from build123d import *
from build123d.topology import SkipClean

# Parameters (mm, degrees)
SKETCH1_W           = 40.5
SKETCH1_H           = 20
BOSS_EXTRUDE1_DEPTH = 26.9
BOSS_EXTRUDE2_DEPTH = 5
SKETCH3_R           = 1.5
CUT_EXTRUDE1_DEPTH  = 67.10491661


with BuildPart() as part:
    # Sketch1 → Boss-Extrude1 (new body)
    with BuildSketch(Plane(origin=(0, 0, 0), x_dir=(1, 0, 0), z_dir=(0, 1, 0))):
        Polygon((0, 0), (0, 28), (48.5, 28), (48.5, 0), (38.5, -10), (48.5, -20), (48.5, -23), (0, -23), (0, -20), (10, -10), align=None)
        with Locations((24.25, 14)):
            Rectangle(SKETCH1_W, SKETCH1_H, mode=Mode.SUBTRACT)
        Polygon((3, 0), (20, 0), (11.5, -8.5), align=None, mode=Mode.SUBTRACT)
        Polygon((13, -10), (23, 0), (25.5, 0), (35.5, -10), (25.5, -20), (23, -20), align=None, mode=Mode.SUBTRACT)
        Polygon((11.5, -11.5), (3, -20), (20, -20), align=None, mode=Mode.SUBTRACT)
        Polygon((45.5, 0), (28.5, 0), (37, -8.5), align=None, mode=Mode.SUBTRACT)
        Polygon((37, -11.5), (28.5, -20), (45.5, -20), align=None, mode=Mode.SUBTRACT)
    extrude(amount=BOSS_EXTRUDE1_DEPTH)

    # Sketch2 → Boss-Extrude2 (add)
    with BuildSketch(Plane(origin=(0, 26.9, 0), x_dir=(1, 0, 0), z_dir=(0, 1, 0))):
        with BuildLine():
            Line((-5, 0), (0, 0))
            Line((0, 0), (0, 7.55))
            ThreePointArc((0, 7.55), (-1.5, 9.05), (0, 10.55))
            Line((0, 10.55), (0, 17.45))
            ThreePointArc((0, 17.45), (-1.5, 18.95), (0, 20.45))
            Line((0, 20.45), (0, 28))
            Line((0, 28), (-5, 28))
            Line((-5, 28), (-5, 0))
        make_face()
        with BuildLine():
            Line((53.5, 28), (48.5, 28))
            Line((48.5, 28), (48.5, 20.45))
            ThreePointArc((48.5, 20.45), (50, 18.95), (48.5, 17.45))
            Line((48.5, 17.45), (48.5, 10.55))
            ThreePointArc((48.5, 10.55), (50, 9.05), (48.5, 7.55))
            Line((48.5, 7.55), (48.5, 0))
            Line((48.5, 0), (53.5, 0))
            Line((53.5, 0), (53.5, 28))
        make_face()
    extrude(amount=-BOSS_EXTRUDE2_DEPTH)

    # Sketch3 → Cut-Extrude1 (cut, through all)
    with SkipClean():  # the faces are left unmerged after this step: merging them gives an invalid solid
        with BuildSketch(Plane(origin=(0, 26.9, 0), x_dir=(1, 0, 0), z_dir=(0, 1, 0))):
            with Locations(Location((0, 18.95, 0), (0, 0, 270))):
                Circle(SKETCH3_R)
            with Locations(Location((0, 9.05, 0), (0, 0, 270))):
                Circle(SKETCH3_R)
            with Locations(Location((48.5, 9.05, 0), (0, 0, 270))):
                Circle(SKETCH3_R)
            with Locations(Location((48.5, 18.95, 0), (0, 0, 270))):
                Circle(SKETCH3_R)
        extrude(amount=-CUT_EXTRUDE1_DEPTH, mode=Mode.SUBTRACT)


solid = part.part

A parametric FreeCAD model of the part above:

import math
import FreeCAD as App
import Part
import Sketcher
from FreeCAD import Vector

doc = App.newDocument("Part")
body = doc.addObject("PartDesign::Body", "Body")

# Sketch on XZ plane
sketch1 = body.newObject("Sketcher::SketchObject", "Sketch")
sketch1.AttachmentSupport = (doc.getObject("XZ_Plane"), [""])
sketch1.MapMode = "FlatFace"
sketch1.addGeometry(Part.LineSegment(Vector(0, -28, 0), Vector(0, 0, 0)), False)
sketch1.addGeometry(Part.LineSegment(Vector(0, 0, 0), Vector(10, 10, 0)), False)
sketch1.addGeometry(Part.LineSegment(Vector(10, 10, 0), Vector(0, 20, 0)), False)
sketch1.addGeometry(Part.LineSegment(Vector(0, 20, 0), Vector(0, 23, 0)), False)
sketch1.addGeometry(Part.LineSegment(Vector(0, 23, 0), Vector(48.5, 23, 0)), False)
sketch1.addGeometry(Part.LineSegment(Vector(48.5, 23, 0), Vector(48.5, 20, 0)), False)
sketch1.addGeometry(Part.LineSegment(Vector(48.5, 20, 0), Vector(38.5, 10, 0)), False)
sketch1.addGeometry(Part.LineSegment(Vector(38.5, 10, 0), Vector(48.5, 0, 0)), False)
sketch1.addGeometry(Part.LineSegment(Vector(48.5, 0, 0), Vector(48.5, -28, 0)), False)
sketch1.addGeometry(Part.LineSegment(Vector(48.5, -28, 0), Vector(0, -28, 0)), False)
sketch1.addGeometry(Part.LineSegment(Vector(37, 11.5, 0), Vector(45.5, 20, 0)), False)
sketch1.addGeometry(Part.LineSegment(Vector(45.5, 20, 0), Vector(28.5, 20, 0)), False)
sketch1.addGeometry(Part.LineSegment(Vector(28.5, 20, 0), Vector(37, 11.5, 0)), False)
sketch1.addGeometry(Part.LineSegment(Vector(45.5, 0, 0), Vector(37, 8.5, 0)), False)
sketch1.addGeometry(Part.LineSegment(Vector(37, 8.5, 0), Vector(28.5, 0, 0)), False)
sketch1.addGeometry(Part.LineSegment(Vector(28.5, 0, 0), Vector(45.5, 0, 0)), False)
sketch1.addGeometry(Part.LineSegment(Vector(13, 10, 0), Vector(23, 0, 0)), False)
sketch1.addGeometry(Part.LineSegment(Vector(23, 0, 0), Vector(25.5, 0, 0)), False)
sketch1.addGeometry(Part.LineSegment(Vector(25.5, 0, 0), Vector(35.5, 10, 0)), False)
sketch1.addGeometry(Part.LineSegment(Vector(35.5, 10, 0), Vector(25.5, 20, 0)), False)
sketch1.addGeometry(Part.LineSegment(Vector(25.5, 20, 0), Vector(23, 20, 0)), False)
sketch1.addGeometry(Part.LineSegment(Vector(23, 20, 0), Vector(13, 10, 0)), False)
sketch1.addGeometry(Part.LineSegment(Vector(11.5, 11.5, 0), Vector(20, 20, 0)), False)
sketch1.addGeometry(Part.LineSegment(Vector(20, 20, 0), Vector(3, 20, 0)), False)
sketch1.addGeometry(Part.LineSegment(Vector(3, 20, 0), Vector(11.5, 11.5, 0)), False)
sketch1.addGeometry(Part.LineSegment(Vector(3, 0, 0), Vector(20, 0, 0)), False)
sketch1.addGeometry(Part.LineSegment(Vector(20, 0, 0), Vector(11.5, 8.5, 0)), False)
sketch1.addGeometry(Part.LineSegment(Vector(11.5, 8.5, 0), Vector(3, 0, 0)), False)
sketch1.addGeometry(Part.LineSegment(Vector(4, -4, 0), Vector(4, -24, 0)), False)
sketch1.addGeometry(Part.LineSegment(Vector(4, -24, 0), Vector(44.5, -24, 0)), False)
sketch1.addGeometry(Part.LineSegment(Vector(44.5, -24, 0), Vector(44.5, -4, 0)), False)
sketch1.addGeometry(Part.LineSegment(Vector(44.5, -4, 0), Vector(4, -4, 0)), False)
sketch1.addConstraint(Sketcher.Constraint("Coincident", 0, 2, 1, 1))
sketch1.addConstraint(Sketcher.Constraint("Coincident", 1, 2, 2, 1))
sketch1.addConstraint(Sketcher.Constraint("Coincident", 2, 2, 3, 1))
sketch1.addConstraint(Sketcher.Constraint("Coincident", 3, 2, 4, 1))
sketch1.addConstraint(Sketcher.Constraint("Coincident", 4, 2, 5, 1))
sketch1.addConstraint(Sketcher.Constraint("Coincident", 5, 2, 6, 1))
sketch1.addConstraint(Sketcher.Constraint("Coincident", 6, 2, 7, 1))
sketch1.addConstraint(Sketcher.Constraint("Coincident", 7, 2, 8, 1))
sketch1.addConstraint(Sketcher.Constraint("Coincident", 8, 2, 9, 1))
sketch1.addConstraint(Sketcher.Constraint("Coincident", 9, 2, 0, 1))
sketch1.addConstraint(Sketcher.Constraint("Coincident", 10, 2, 11, 1))
sketch1.addConstraint(Sketcher.Constraint("Coincident", 11, 2, 12, 1))
sketch1.addConstraint(Sketcher.Constraint("Coincident", 12, 2, 10, 1))
sketch1.addConstraint(Sketcher.Constraint("Coincident", 13, 2, 14, 1))
sketch1.addConstraint(Sketcher.Constraint("Coincident", 14, 2, 15, 1))
sketch1.addConstraint(Sketcher.Constraint("Coincident", 15, 2, 13, 1))
sketch1.addConstraint(Sketcher.Constraint("Coincident", 16, 2, 17, 1))
sketch1.addConstraint(Sketcher.Constraint("Coincident", 17, 2, 18, 1))
sketch1.addConstraint(Sketcher.Constraint("Coincident", 18, 2, 19, 1))
sketch1.addConstraint(Sketcher.Constraint("Coincident", 19, 2, 20, 1))
sketch1.addConstraint(Sketcher.Constraint("Coincident", 20, 2, 21, 1))
sketch1.addConstraint(Sketcher.Constraint("Coincident", 21, 2, 16, 1))
sketch1.addConstraint(Sketcher.Constraint("Coincident", 22, 2, 23, 1))
sketch1.addConstraint(Sketcher.Constraint("Coincident", 23, 2, 24, 1))
sketch1.addConstraint(Sketcher.Constraint("Coincident", 24, 2, 22, 1))
sketch1.addConstraint(Sketcher.Constraint("Coincident", 25, 2, 26, 1))
sketch1.addConstraint(Sketcher.Constraint("Coincident", 26, 2, 27, 1))
sketch1.addConstraint(Sketcher.Constraint("Coincident", 27, 2, 25, 1))
sketch1.addConstraint(Sketcher.Constraint("Coincident", 28, 2, 29, 1))
sketch1.addConstraint(Sketcher.Constraint("Coincident", 29, 2, 30, 1))
sketch1.addConstraint(Sketcher.Constraint("Coincident", 30, 2, 31, 1))
sketch1.addConstraint(Sketcher.Constraint("Coincident", 31, 2, 28, 1))
sketch1.addConstraint(Sketcher.Constraint("Vertical", 0))
sketch1.addConstraint(Sketcher.Constraint("Vertical", 3))
sketch1.addConstraint(Sketcher.Constraint("Horizontal", 4))
sketch1.addConstraint(Sketcher.Constraint("Vertical", 5))
sketch1.addConstraint(Sketcher.Constraint("Vertical", 8))
sketch1.addConstraint(Sketcher.Constraint("Horizontal", 9))
sketch1.addConstraint(Sketcher.Constraint("Horizontal", 11))
sketch1.addConstraint(Sketcher.Constraint("Horizontal", 15))
sketch1.addConstraint(Sketcher.Constraint("Horizontal", 17))
sketch1.addConstraint(Sketcher.Constraint("Horizontal", 20))
sketch1.addConstraint(Sketcher.Constraint("Horizontal", 23))
sketch1.addConstraint(Sketcher.Constraint("Horizontal", 25))
sketch1.addConstraint(Sketcher.Constraint("Vertical", 28))
sketch1.addConstraint(Sketcher.Constraint("Horizontal", 29))
sketch1.addConstraint(Sketcher.Constraint("Vertical", 30))
sketch1.addConstraint(Sketcher.Constraint("Horizontal", 31))
sketch1.addConstraint(Sketcher.Constraint("Coincident", 0, 2, -1, 1))
sketch1.addConstraint(Sketcher.Constraint("PointOnObject", 2, 2, -2))
sketch1.addConstraint(Sketcher.Constraint("PointOnObject", 7, 2, -1))
sketch1.addConstraint(Sketcher.Constraint("PointOnObject", 14, 2, -1))
sketch1.addConstraint(Sketcher.Constraint("PointOnObject", 16, 2, -1))
sketch1.addConstraint(Sketcher.Constraint("PointOnObject", 25, 2, -1))
sketch1.addConstraint(Sketcher.Constraint("Perpendicular", 1, 2))
sketch1.addConstraint(Sketcher.Constraint("Perpendicular", 2, 6))
sketch1.addConstraint(Sketcher.Constraint("Perpendicular", 6, 7))
sketch1.addConstraint(Sketcher.Constraint("Perpendicular", 7, 10))
sketch1.addConstraint(Sketcher.Constraint("Perpendicular", 10, 12))
sketch1.addConstraint(Sketcher.Constraint("Parallel", 12, 13))
sketch1.addConstraint(Sketcher.Constraint("Perpendicular", 13, 14))
sketch1.addConstraint(Sketcher.Constraint("Perpendicular", 14, 16))
sketch1.addConstraint(Sketcher.Constraint("Perpendicular", 16, 18))
sketch1.addConstraint(Sketcher.Constraint("Perpendicular", 18, 19))
sketch1.addConstraint(Sketcher.Constraint("Perpendicular", 19, 21))
sketch1.addConstraint(Sketcher.Constraint("Parallel", 21, 22))
sketch1.addConstraint(Sketcher.Constraint("Perpendicular", 22, 24))
sketch1.addConstraint(Sketcher.Constraint("Parallel", 24, 26))
sketch1.addConstraint(Sketcher.Constraint("Perpendicular", 26, 27))
sketch1.addConstraint(Sketcher.Constraint("Horizontal", 2, 2, 5, 2))
sketch1.addConstraint(Sketcher.Constraint("Horizontal", 1, 2, 6, 2))
sketch1.addConstraint(Sketcher.Constraint("Horizontal", 5, 2, 10, 2))
sketch1.addConstraint(Sketcher.Constraint("Horizontal", 6, 2, 18, 2))
sketch1.addConstraint(Sketcher.Constraint("Horizontal", 11, 2, 19, 2))
sketch1.addConstraint(Sketcher.Constraint("Horizontal", 18, 2, 21, 2))
sketch1.addConstraint(Sketcher.Constraint("Horizontal", 20, 2, 22, 2))
sketch1.addConstraint(Sketcher.Constraint("Horizontal", 12, 2, 24, 2))
sketch1.addConstraint(Sketcher.Constraint("Horizontal", 13, 2, 26, 2))
sketch1.addConstraint(Sketcher.Constraint("Vertical", 5, 2, 7, 2))
sketch1.addConstraint(Sketcher.Constraint("Vertical", 12, 2, 13, 2))
sketch1.addConstraint(Sketcher.Constraint("Vertical", 11, 2, 14, 2))
sketch1.addConstraint(Sketcher.Constraint("Vertical", 22, 2, 25, 2))
sketch1.addConstraint(Sketcher.Constraint("DistanceX", 11, 2, 11, 1, 17.0))
sketch1.addConstraint(Sketcher.Constraint("DistanceY", 0, 1, 0, 2, 28.0))
sketch1.addConstraint(Sketcher.Constraint("DistanceY", 3, 1, 3, 2, 3.0))
sketch1.addConstraint(Sketcher.Constraint("DistanceY", 28, 2, 28, 1, 20.0))
sketch1.addConstraint(Sketcher.Constraint("DistanceX", 4, 1, 4, 2, 48.5))
sketch1.addConstraint(Sketcher.Constraint("DistanceX", 17, 1, 17, 2, 2.5))
sketch1.addConstraint(Sketcher.Constraint("DistanceX", 29, 1, 29, 2, 40.5))
sketch1.addConstraint(Sketcher.Constraint("DistanceX", -1, 1, 1, 2, 10.0))
sketch1.addConstraint(Sketcher.Constraint("DistanceX", -1, 1, 12, 2, 37.0))
sketch1.addConstraint(Sketcher.Constraint("DistanceX", -1, 1, 16, 2, 23.0))
sketch1.addConstraint(Sketcher.Constraint("DistanceX", -1, 1, 22, 2, 20.0))
sketch1.addConstraint(Sketcher.Constraint("DistanceX", -1, 1, 28, 2, 4.0))
sketch1.addConstraint(Sketcher.Constraint("DistanceY", 28, 2, -1, 1, 24.0))
pad1 = body.newObject("PartDesign::Pad", "Pad")
pad1.Profile = sketch1
pad1.Length = 26.9
pad1.Reversed = True

# Sketch on XZ plane
sketch2 = body.newObject("Sketcher::SketchObject", "Sketch001")
sketch2.AttachmentSupport = (doc.getObject("XZ_Plane"), [""])
sketch2.MapMode = "FlatFace"
sketch2.AttachmentOffset = App.Placement(Vector(0, 0, -26.9), App.Rotation())
sketch2.addGeometry(Part.LineSegment(Vector(-5, 0, 0), Vector(0, 0, 0)), False)
sketch2.addGeometry(Part.LineSegment(Vector(0, 0, 0), Vector(0, -7.55, 0)), False)
sketch2.addGeometry(Part.ArcOfCircle(Part.Circle(Vector(0, -9.05, 0), Vector(0, 0, 1), 1.5), math.radians(90), math.radians(270)), False)
sketch2.addGeometry(Part.LineSegment(Vector(0, -10.55, 0), Vector(0, -17.45, 0)), False)
sketch2.addGeometry(Part.ArcOfCircle(Part.Circle(Vector(0, -18.95, 0), Vector(0, 0, 1), 1.5), math.radians(90), math.radians(270)), False)
sketch2.addGeometry(Part.LineSegment(Vector(0, -20.45, 0), Vector(0, -28, 0)), False)
sketch2.addGeometry(Part.LineSegment(Vector(0, -28, 0), Vector(-5, -28, 0)), False)
sketch2.addGeometry(Part.LineSegment(Vector(-5, -28, 0), Vector(-5, 0, 0)), False)
sketch2.addGeometry(Part.LineSegment(Vector(53.5, -28, 0), Vector(48.5, -28, 0)), False)
sketch2.addGeometry(Part.LineSegment(Vector(48.5, -28, 0), Vector(48.5, -20.45, 0)), False)
sketch2.addGeometry(Part.ArcOfCircle(Part.Circle(Vector(48.5, -18.95, 0), Vector(0, 0, 1), 1.5), math.radians(-90), math.radians(90)), False)
sketch2.addGeometry(Part.LineSegment(Vector(48.5, -17.45, 0), Vector(48.5, -10.55, 0)), False)
sketch2.addGeometry(Part.ArcOfCircle(Part.Circle(Vector(48.5, -9.05, 0), Vector(0, 0, 1), 1.5), math.radians(-90), math.radians(90)), False)
sketch2.addGeometry(Part.LineSegment(Vector(48.5, -7.55, 0), Vector(48.5, 0, 0)), False)
sketch2.addGeometry(Part.LineSegment(Vector(48.5, 0, 0), Vector(53.5, 0, 0)), False)
sketch2.addGeometry(Part.LineSegment(Vector(53.5, 0, 0), Vector(53.5, -28, 0)), False)
sketch2.addConstraint(Sketcher.Constraint("Coincident", 0, 2, 1, 1))
sketch2.addConstraint(Sketcher.Constraint("Coincident", 1, 2, 2, 1))
sketch2.addConstraint(Sketcher.Constraint("Coincident", 2, 2, 3, 1))
sketch2.addConstraint(Sketcher.Constraint("Coincident", 3, 2, 4, 1))
sketch2.addConstraint(Sketcher.Constraint("Coincident", 4, 2, 5, 1))
sketch2.addConstraint(Sketcher.Constraint("Coincident", 5, 2, 6, 1))
sketch2.addConstraint(Sketcher.Constraint("Coincident", 6, 2, 7, 1))
sketch2.addConstraint(Sketcher.Constraint("Coincident", 7, 2, 0, 1))
sketch2.addConstraint(Sketcher.Constraint("Coincident", 8, 2, 9, 1))
sketch2.addConstraint(Sketcher.Constraint("Coincident", 9, 2, 10, 1))
sketch2.addConstraint(Sketcher.Constraint("Coincident", 10, 2, 11, 1))
sketch2.addConstraint(Sketcher.Constraint("Coincident", 11, 2, 12, 1))
sketch2.addConstraint(Sketcher.Constraint("Coincident", 12, 2, 13, 1))
sketch2.addConstraint(Sketcher.Constraint("Coincident", 13, 2, 14, 1))
sketch2.addConstraint(Sketcher.Constraint("Coincident", 14, 2, 15, 1))
sketch2.addConstraint(Sketcher.Constraint("Coincident", 15, 2, 8, 1))
sketch2.addConstraint(Sketcher.Constraint("Horizontal", 0))
sketch2.addConstraint(Sketcher.Constraint("Vertical", 1))
sketch2.addConstraint(Sketcher.Constraint("Vertical", 3))
sketch2.addConstraint(Sketcher.Constraint("Vertical", 5))
sketch2.addConstraint(Sketcher.Constraint("Horizontal", 6))
sketch2.addConstraint(Sketcher.Constraint("Vertical", 7))
sketch2.addConstraint(Sketcher.Constraint("Horizontal", 8))
sketch2.addConstraint(Sketcher.Constraint("Vertical", 9))
sketch2.addConstraint(Sketcher.Constraint("Vertical", 11))
sketch2.addConstraint(Sketcher.Constraint("Vertical", 13))
sketch2.addConstraint(Sketcher.Constraint("Horizontal", 14))
sketch2.addConstraint(Sketcher.Constraint("Vertical", 15))
sketch2.addConstraint(Sketcher.Constraint("Coincident", 0, 2, -1, 1))
sketch2.addConstraint(Sketcher.Constraint("Equal", 2, 4))
sketch2.addConstraint(Sketcher.Constraint("Equal", 4, 10))
sketch2.addConstraint(Sketcher.Constraint("Equal", 10, 12))
sketch2.addConstraint(Sketcher.Constraint("PointOnObject", 2, 3, -2))
sketch2.addConstraint(Sketcher.Constraint("PointOnObject", 4, 3, -2))
sketch2.addConstraint(Sketcher.Constraint("PointOnObject", 2, 2, -2))
sketch2.addConstraint(Sketcher.Constraint("PointOnObject", 4, 2, -2))
sketch2.addConstraint(Sketcher.Constraint("PointOnObject", 13, 2, -1))
sketch2.addConstraint(Sketcher.Constraint("Horizontal", 4, 3, 10, 3))
sketch2.addConstraint(Sketcher.Constraint("Horizontal", 2, 3, 12, 3))
sketch2.addConstraint(Sketcher.Constraint("Horizontal", 6, 2, 8, 2))
sketch2.addConstraint(Sketcher.Constraint("Vertical", 10, 3, 12, 3))
sketch2.addConstraint(Sketcher.Constraint("Vertical", 12, 3, 8, 2))
sketch2.addConstraint(Sketcher.Constraint("Vertical", 9, 2, 10, 2))
sketch2.addConstraint(Sketcher.Constraint("Vertical", 11, 2, 12, 2))
sketch2.addConstraint(Sketcher.Constraint("Equal", 6, 8))
sketch2.addConstraint(Sketcher.Constraint("Equal", 1, 5))
sketch2.addConstraint(Sketcher.Constraint("Radius", 2, 1.5))
sketch2.addConstraint(Sketcher.Constraint("DistanceX", 0, 1, 0, 2, 5.0))
sketch2.addConstraint(Sketcher.Constraint("DistanceY", 7, 1, 7, 2, 28.0))
sketch2.addConstraint(Sketcher.Constraint("DistanceY", 3, 2, 3, 1, 6.9))
sketch2.addConstraint(Sketcher.Constraint("DistanceX", -1, 1, 10, 3, 48.5))
pad2 = body.newObject("PartDesign::Pad", "Pad001")
pad2.Profile = sketch2
pad2.Length = 5

# Sketch on XZ plane
sketch3 = body.newObject("Sketcher::SketchObject", "Sketch002")
sketch3.AttachmentSupport = (doc.getObject("XZ_Plane"), [""])
sketch3.MapMode = "FlatFace"
sketch3.AttachmentOffset = App.Placement(Vector(0, 0, -26.9), App.Rotation())
sketch3.addGeometry(Part.Circle(Vector(0, -18.95, 0), Vector(0, 0, 1), 1.5), False)
sketch3.addGeometry(Part.Circle(Vector(0, -9.05, 0), Vector(0, 0, 1), 1.5), False)
sketch3.addGeometry(Part.Circle(Vector(48.5, -9.05, 0), Vector(0, 0, 1), 1.5), False)
sketch3.addGeometry(Part.Circle(Vector(48.5, -18.95, 0), Vector(0, 0, 1), 1.5), False)
sketch3.addConstraint(Sketcher.Constraint("Equal", 0, 1))
sketch3.addConstraint(Sketcher.Constraint("Equal", 1, 2))
sketch3.addConstraint(Sketcher.Constraint("Equal", 2, 3))
sketch3.addConstraint(Sketcher.Constraint("PointOnObject", 0, 3, -2))
sketch3.addConstraint(Sketcher.Constraint("PointOnObject", 1, 3, -2))
sketch3.addConstraint(Sketcher.Constraint("Horizontal", 1, 3, 2, 3))
sketch3.addConstraint(Sketcher.Constraint("Horizontal", 0, 3, 3, 3))
sketch3.addConstraint(Sketcher.Constraint("Vertical", 2, 3, 3, 3))
sketch3.addConstraint(Sketcher.Constraint("Diameter", 0, 3.0))
sketch3.addConstraint(Sketcher.Constraint("DistanceX", -1, 1, 2, 3, 48.5))
sketch3.addConstraint(Sketcher.Constraint("DistanceY", 0, 3, 1, 3, 9.9))
sketch3.addConstraint(Sketcher.Constraint("DistanceY", 0, 3, -1, 1, 18.95))
pocket1 = body.newObject("PartDesign::Pocket", "Pocket")
pocket1.Profile = sketch3
pocket1.Type = "ThroughAll"
pocket1.Reversed = True

doc.recompute()
